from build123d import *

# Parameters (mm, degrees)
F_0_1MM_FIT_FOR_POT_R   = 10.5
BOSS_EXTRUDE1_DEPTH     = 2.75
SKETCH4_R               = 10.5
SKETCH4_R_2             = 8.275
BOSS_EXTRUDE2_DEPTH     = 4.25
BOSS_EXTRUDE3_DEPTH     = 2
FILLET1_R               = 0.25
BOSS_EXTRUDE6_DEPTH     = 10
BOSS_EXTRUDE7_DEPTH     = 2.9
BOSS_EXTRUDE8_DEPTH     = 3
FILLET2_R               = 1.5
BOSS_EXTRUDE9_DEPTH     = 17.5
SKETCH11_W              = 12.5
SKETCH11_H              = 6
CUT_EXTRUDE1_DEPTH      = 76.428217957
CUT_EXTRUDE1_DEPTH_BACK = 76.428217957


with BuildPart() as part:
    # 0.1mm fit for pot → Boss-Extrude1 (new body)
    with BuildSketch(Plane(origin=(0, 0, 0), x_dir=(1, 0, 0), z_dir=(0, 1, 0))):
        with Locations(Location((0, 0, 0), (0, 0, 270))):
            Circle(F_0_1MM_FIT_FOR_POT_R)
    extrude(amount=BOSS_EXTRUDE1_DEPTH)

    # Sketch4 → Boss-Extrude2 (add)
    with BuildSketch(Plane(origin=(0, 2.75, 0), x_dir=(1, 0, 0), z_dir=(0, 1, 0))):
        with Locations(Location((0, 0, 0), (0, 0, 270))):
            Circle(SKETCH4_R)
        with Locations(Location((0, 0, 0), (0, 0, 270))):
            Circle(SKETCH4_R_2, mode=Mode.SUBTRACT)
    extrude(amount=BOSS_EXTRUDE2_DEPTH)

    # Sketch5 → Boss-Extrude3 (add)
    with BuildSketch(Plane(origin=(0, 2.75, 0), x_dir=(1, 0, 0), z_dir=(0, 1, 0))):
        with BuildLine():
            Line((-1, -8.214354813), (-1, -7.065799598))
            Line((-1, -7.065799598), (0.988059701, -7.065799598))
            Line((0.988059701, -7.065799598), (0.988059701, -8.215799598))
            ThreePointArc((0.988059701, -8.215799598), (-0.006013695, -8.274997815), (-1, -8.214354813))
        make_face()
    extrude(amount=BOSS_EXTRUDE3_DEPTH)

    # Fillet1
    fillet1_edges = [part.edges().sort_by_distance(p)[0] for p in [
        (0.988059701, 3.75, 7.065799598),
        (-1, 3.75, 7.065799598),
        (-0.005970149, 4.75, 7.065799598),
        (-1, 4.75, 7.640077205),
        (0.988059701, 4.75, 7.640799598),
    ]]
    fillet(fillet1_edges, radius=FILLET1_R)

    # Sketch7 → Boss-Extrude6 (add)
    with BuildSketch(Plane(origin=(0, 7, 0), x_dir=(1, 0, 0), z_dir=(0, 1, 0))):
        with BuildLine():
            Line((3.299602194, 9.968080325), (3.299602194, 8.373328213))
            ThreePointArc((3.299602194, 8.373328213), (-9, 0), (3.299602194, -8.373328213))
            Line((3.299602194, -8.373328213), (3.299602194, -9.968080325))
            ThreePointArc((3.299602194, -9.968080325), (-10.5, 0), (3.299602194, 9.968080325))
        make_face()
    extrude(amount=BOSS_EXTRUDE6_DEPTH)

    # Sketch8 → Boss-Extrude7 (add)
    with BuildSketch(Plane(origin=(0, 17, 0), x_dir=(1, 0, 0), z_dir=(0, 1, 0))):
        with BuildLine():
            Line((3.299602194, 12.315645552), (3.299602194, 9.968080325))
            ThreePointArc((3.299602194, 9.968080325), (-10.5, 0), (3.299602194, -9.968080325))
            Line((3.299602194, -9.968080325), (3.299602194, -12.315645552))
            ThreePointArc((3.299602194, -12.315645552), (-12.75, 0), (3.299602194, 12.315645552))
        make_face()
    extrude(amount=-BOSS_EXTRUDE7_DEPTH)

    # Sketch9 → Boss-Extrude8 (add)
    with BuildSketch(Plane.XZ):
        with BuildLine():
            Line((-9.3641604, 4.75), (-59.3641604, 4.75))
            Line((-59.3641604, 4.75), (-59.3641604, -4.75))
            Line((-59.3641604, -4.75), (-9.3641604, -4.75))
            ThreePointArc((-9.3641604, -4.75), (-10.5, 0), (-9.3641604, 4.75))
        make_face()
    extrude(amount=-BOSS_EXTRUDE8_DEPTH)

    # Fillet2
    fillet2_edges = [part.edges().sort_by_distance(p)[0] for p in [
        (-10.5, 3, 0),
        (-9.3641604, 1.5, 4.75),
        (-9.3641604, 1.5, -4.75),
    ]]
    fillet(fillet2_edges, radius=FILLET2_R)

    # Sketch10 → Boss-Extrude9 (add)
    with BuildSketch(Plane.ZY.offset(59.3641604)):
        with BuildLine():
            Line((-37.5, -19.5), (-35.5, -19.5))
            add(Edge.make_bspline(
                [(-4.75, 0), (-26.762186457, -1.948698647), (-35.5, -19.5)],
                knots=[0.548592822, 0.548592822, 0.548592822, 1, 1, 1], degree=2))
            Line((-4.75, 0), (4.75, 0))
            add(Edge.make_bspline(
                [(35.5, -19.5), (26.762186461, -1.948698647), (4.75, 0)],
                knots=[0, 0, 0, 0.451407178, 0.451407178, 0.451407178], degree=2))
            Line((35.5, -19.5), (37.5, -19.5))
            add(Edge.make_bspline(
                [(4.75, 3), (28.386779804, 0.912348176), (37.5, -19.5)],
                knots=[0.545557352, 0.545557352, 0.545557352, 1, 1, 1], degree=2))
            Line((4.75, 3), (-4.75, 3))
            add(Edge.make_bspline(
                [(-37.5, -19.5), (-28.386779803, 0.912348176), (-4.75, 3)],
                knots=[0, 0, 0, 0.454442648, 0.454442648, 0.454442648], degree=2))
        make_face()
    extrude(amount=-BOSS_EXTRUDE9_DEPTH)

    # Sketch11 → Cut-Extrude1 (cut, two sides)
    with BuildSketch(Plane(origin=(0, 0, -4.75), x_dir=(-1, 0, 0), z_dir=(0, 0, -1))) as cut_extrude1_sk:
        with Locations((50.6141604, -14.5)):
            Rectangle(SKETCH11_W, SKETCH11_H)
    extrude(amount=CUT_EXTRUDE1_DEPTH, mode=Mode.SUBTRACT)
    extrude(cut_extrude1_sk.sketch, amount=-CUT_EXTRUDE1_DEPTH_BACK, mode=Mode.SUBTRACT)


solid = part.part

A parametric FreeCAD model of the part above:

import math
import FreeCAD as App
import Part
import Sketcher

V = App.Vector
Q = App.Units.Quantity


def edges_at(feature, points):
    """Names of the edges that pass closest to the given points."""
    edges = feature.Shape.Edges
    near = lambda p: min(range(len(edges)), key=lambda i: edges[i].distToShape(Part.Vertex(*p))[0])
    return sorted({f"Edge{near(p) + 1}" for p in points})


def add_polygon(sketch, points):
    """Adds a closed chain of lines whose ends are joined by coincident constraints."""
    first, n = sketch.GeometryCount, len(points)
    for a, b in zip(points, points[1:] + points[:1]):
        sketch.addGeometry(Part.LineSegment(App.Vector(*a, 0), App.Vector(*b, 0)), False)
    for i in range(n):
        sketch.addConstraint(Sketcher.Constraint("Coincident", first + i, 2, first + (i + 1) % n, 1))

doc = App.newDocument("Part")
params = doc.addObject("Spreadsheet::Sheet", "Params")
for row, (alias, value) in enumerate([
    ("sketch1_diameter", "21 mm"),
    ("pad1_length", "2.75 mm"),
    ("sketch2_diameter", "21 mm"),
    ("sketch2_diameter2", "16.55 mm"),
    ("pad2_length", "4.25 mm"),
    ("sketch3_height", "1.15 mm"),
    ("pad3_length", "2 mm"),
    ("fillet_radius", "0.25 mm"),
    ("sketch4_radius", "9 mm"),
    ("sketch4_radius2", "10.5 mm"),
    ("pad4_length", "10 mm"),
    ("sketch5_radius", "10.5 mm"),
    ("sketch5_radius2", "12.75 mm"),
    ("pad5_length", "2.9 mm"),
    ("sketch6_radius", "10.5 mm"),
    ("sketch6_width", "50 mm"),
    ("sketch6_height", "9.5 mm"),
    ("pad6_length", "3 mm"),
    ("fillet2_radius", "1.5 mm"),
    ("pad7_length", "17.5 mm"),
    ("sketch8_height", "6 mm"),
    ("sketch8_width", "12.5 mm"),
], start=1):
    params.set(f"A{row}", alias)
    params.set(f"B{row}", "=" + value)
    params.setAlias(f"B{row}", alias)

body = doc.addObject("PartDesign::Body", "Body")

# Sketch on XZ plane
sketch1 = body.newObject("Sketcher::SketchObject", "Sketch")
sketch1.AttachmentSupport = (doc.getObject("XZ_Plane"), [""])
sketch1.MapMode = "FlatFace"
sketch1.addGeometry(Part.Circle(V(0, 0, 0), V(0, 0, 1), 10.5), False)
sketch1.addConstraint(Sketcher.Constraint("Coincident", 0, 3, -1, 1))
sketch1.addConstraint(Sketcher.Constraint("Diameter", 0, Q("21 mm")))
sketch1.setExpression("Constraints[1]", "Params.sketch1_diameter")
pad1 = body.newObject("PartDesign::Pad", "Pad")
pad1.Profile = sketch1
pad1.setExpression("Length", "Params.pad1_length")
pad1.Reversed = True

# Sketch on XZ plane
sketch2 = body.newObject("Sketcher::SketchObject", "Sketch001")
sketch2.AttachmentSupport = (doc.getObject("XZ_Plane"), [""])
sketch2.MapMode = "FlatFace"
sketch2.AttachmentOffset = App.Placement(V(0, 0, -2.75), App.Rotation())
sketch2.addGeometry(Part.Circle(V(0, 0, 0), V(0, 0, 1), 10.5), False)
sketch2.addGeometry(Part.Circle(V(0, 0, 0), V(0, 0, 1), 8.275), False)
sketch2.addConstraint(Sketcher.Constraint("Coincident", 0, 3, -1, 1))
sketch2.addConstraint(Sketcher.Constraint("Coincident", 1, 3, -1, 1))
sketch2.addConstraint(Sketcher.Constraint("Diameter", 0, Q("21 mm")))
sketch2.addConstraint(Sketcher.Constraint("Diameter", 1, Q("16.55 mm")))
sketch2.setExpression("Constraints[2]", "Params.sketch2_diameter")
sketch2.setExpression("Constraints[3]", "Params.sketch2_diameter2")
pad2 = body.newObject("PartDesign::Pad", "Pad001")
pad2.Profile = sketch2
pad2.setExpression("Length", "Params.pad2_length")
pad2.Reversed = True

# Sketch on XZ plane
sketch3 = body.newObject("Sketcher::SketchObject", "Sketch002")
sketch3.AttachmentSupport = (doc.getObject("XZ_Plane"), [""])
sketch3.MapMode = "FlatFace"
sketch3.AttachmentOffset = App.Placement(V(0, 0, -2.75), App.Rotation())
sketch3.addGeometry(Part.LineSegment(V(-1, 7.0658, 0), V(-1, 8.214355, 0)), False)
sketch3.addGeometry(Part.ArcOfCircle(Part.Circle(V(0, 0, 0), V(0, 0, 1), 8.275), math.radians(83.142352), math.radians(96.940926)), False)
sketch3.addGeometry(Part.LineSegment(V(0.98806, 8.2158, 0), V(0.98806, 7.0658, 0)), False)
sketch3.addGeometry(Part.LineSegment(V(0.98806, 7.0658, 0), V(-1, 7.0658, 0)), False)
sketch3.addConstraint(Sketcher.Constraint("Coincident", 0, 2, 1, 2))
sketch3.addConstraint(Sketcher.Constraint("Coincident", 1, 1, 2, 1))
sketch3.addConstraint(Sketcher.Constraint("Coincident", 2, 2, 3, 1))
sketch3.addConstraint(Sketcher.Constraint("Coincident", 3, 2, 0, 1))
sketch3.addConstraint(Sketcher.Constraint("Vertical", 0))
sketch3.addConstraint(Sketcher.Constraint("Vertical", 2))
sketch3.addConstraint(Sketcher.Constraint("Horizontal", 3))
sketch3.addConstraint(Sketcher.Constraint("Coincident", 1, 3, -1, 1))
sketch3.addConstraint(Sketcher.Constraint("DistanceX", 0, 2, -1, 1, Q("1 mm")))
sketch3.addConstraint(Sketcher.Constraint("Radius", 1, Q("8.275 mm")))
sketch3.addConstraint(Sketcher.Constraint("DistanceY", 2, 2, 2, 1, Q("1.15 mm")))
sketch3.addConstraint(Sketcher.Constraint("DistanceX", 3, 2, 3, 1, Q("1.98806 mm")))
sketch3.setExpression("Constraints[10]", "Params.sketch3_height")
pad3 = body.newObject("PartDesign::Pad", "Pad002")
pad3.Profile = sketch3
pad3.setExpression("Length", "Params.pad3_length")
pad3.Reversed = True
doc.recompute()

fillet = body.newObject("PartDesign::Fillet", "Fillet")
fillet.Base = (pad3, edges_at(pad3, [
    (0.988, 3.75, 7.066),
    (-1, 3.75, 7.066),
    (-0.006, 4.75, 7.066),
    (-1, 4.75, 7.64),
    (0.988, 4.75, 7.641),
]))
fillet.setExpression("Radius", "Params.fillet_radius")

# Sketch on XZ plane
sketch4 = body.newObject("Sketcher::SketchObject", "Sketch003")
sketch4.AttachmentSupport = (doc.getObject("XZ_Plane"), [""])
sketch4.MapMode = "FlatFace"
sketch4.AttachmentOffset = App.Placement(V(0, 0, -7), App.Rotation())
sketch4.addGeometry(Part.LineSegment(V(3.299602, -8.373328, 0), V(3.299602, -9.96808, 0)), False)
sketch4.addGeometry(Part.ArcOfCircle(Part.Circle(V(0, 0, 0), V(0, 0, 1), 10.5), math.radians(71.684588), math.radians(288.315412)), False)
sketch4.addGeometry(Part.LineSegment(V(3.299602, 9.96808, 0), V(3.299602, 8.373328, 0)), False)
sketch4.addGeometry(Part.ArcOfCircle(Part.Circle(V(0, 0, 0), V(0, 0, 1), 9), math.radians(68.492534), math.radians(291.507466)), False)
sketch4.addConstraint(Sketcher.Constraint("Coincident", 0, 2, 1, 2))
sketch4.addConstraint(Sketcher.Constraint("Coincident", 1, 1, 2, 1))
sketch4.addConstraint(Sketcher.Constraint("Coincident", 2, 2, 3, 1))
sketch4.addConstraint(Sketcher.Constraint("Coincident", 3, 2, 0, 1))
sketch4.addConstraint(Sketcher.Constraint("Vertical", 0))
sketch4.addConstraint(Sketcher.Constraint("Vertical", 2))
sketch4.addConstraint(Sketcher.Constraint("Coincident", 1, 3, -1, 1))
sketch4.addConstraint(Sketcher.Constraint("Coincident", 3, 3, -1, 1))
sketch4.addConstraint(Sketcher.Constraint("Vertical", 0, 2, 1, 1))
sketch4.addConstraint(Sketcher.Constraint("Radius", 3, Q("9 mm")))
sketch4.addConstraint(Sketcher.Constraint("Radius", 1, Q("10.5 mm")))
sketch4.addConstraint(Sketcher.Constraint("DistanceY", 0, 2, 0, 1, Q("1.594752 mm")))
sketch4.setExpression("Constraints[9]", "Params.sketch4_radius")
sketch4.setExpression("Constraints[10]", "Params.sketch4_radius2")
pad4 = body.newObject("PartDesign::Pad", "Pad003")
pad4.Profile = sketch4
pad4.setExpression("Length", "Params.pad4_length")
pad4.Reversed = True

# Sketch on XZ plane
sketch5 = body.newObject("Sketcher::SketchObject", "Sketch004")
sketch5.AttachmentSupport = (doc.getObject("XZ_Plane"), [""])
sketch5.MapMode = "FlatFace"
sketch5.AttachmentOffset = App.Placement(V(0, 0, -17), App.Rotation())
sketch5.addGeometry(Part.LineSegment(V(3.299602, -9.96808, 0), V(3.299602, -12.315646, 0)), False)
sketch5.addGeometry(Part.ArcOfCircle(Part.Circle(V(0, 0, 0), V(0, 0, 1), 12.75), math.radians(75.001585), math.radians(284.998415)), False)
sketch5.addGeometry(Part.LineSegment(V(3.299602, 12.315646, 0), V(3.299602, 9.96808, 0)), False)
sketch5.addGeometry(Part.ArcOfCircle(Part.Circle(V(0, 0, 0), V(0, 0, 1), 10.5), math.radians(71.684588), math.radians(288.315412)), False)
sketch5.addConstraint(Sketcher.Constraint("Coincident", 0, 2, 1, 2))
sketch5.addConstraint(Sketcher.Constraint("Coincident", 1, 1, 2, 1))
sketch5.addConstraint(Sketcher.Constraint("Coincident", 2, 2, 3, 1))
sketch5.addConstraint(Sketcher.Constraint("Coincident", 3, 2, 0, 1))
sketch5.addConstraint(Sketcher.Constraint("Vertical", 0))
sketch5.addConstraint(Sketcher.Constraint("Vertical", 2))
sketch5.addConstraint(Sketcher.Constraint("Coincident", 1, 3, -1, 1))
sketch5.addConstraint(Sketcher.Constraint("Coincident", 3, 3, -1, 1))
sketch5.addConstraint(Sketcher.Constraint("Vertical", 0, 2, 1, 1))
sketch5.addConstraint(Sketcher.Constraint("Radius", 3, Q("10.5 mm")))
sketch5.addConstraint(Sketcher.Constraint("Radius", 1, Q("12.75 mm")))
sketch5.addConstraint(Sketcher.Constraint("DistanceY", 0, 2, 0, 1, Q("2.347565 mm")))
sketch5.setExpression("Constraints[9]", "Params.sketch5_radius")
sketch5.setExpression("Constraints[10]", "Params.sketch5_radius2")
pad5 = body.newObject("PartDesign::Pad", "Pad004")
pad5.Profile = sketch5
pad5.setExpression("Length", "Params.pad5_length")

# Sketch on XZ plane
sketch6 = body.newObject("Sketcher::SketchObject", "Sketch005")
sketch6.AttachmentSupport = (doc.getObject("XZ_Plane"), [""])
sketch6.MapMode = "FlatFace"
sketch6.addGeometry(Part.LineSegment(V(-9.36416, 4.75, 0), V(-59.36416, 4.75, 0)), False)
sketch6.addGeometry(Part.LineSegment(V(-59.36416, 4.75, 0), V(-59.36416, -4.75, 0)), False)
sketch6.addGeometry(Part.LineSegment(V(-59.36416, -4.75, 0), V(-9.36416, -4.75, 0)), False)
sketch6.addGeometry(Part.ArcOfCircle(Part.Circle(V(0, 0, 0), V(0, 0, 1), 10.5), math.radians(153.103454), math.radians(206.896546)), False)
sketch6.addConstraint(Sketcher.Constraint("Coincident", 0, 2, 1, 1))
sketch6.addConstraint(Sketcher.Constraint("Coincident", 1, 2, 2, 1))
sketch6.addConstraint(Sketcher.Constraint("Coincident", 2, 2, 3, 2))
sketch6.addConstraint(Sketcher.Constraint("Coincident", 3, 1, 0, 1))
sketch6.addConstraint(Sketcher.Constraint("Horizontal", 0))
sketch6.addConstraint(Sketcher.Constraint("Vertical", 1))
sketch6.addConstraint(Sketcher.Constraint("Horizontal", 2))
sketch6.addConstraint(Sketcher.Constraint("Coincident", 3, 3, -1, 1))
sketch6.addConstraint(Sketcher.Constraint("Vertical", 2, 2, 3, 1))
sketch6.addConstraint(Sketcher.Constraint("Radius", 3, Q("10.5 mm")))
sketch6.addConstraint(Sketcher.Constraint("DistanceX", 0, 2, 0, 1, Q("50 mm")))
sketch6.addConstraint(Sketcher.Constraint("DistanceY", 1, 2, 1, 1, Q("9.5 mm")))
sketch6.setExpression("Constraints[9]", "Params.sketch6_radius")
sketch6.setExpression("Constraints[10]", "Params.sketch6_width")
sketch6.setExpression("Constraints[11]", "Params.sketch6_height")
pad6 = body.newObject("PartDesign::Pad", "Pad005")
pad6.Profile = sketch6
pad6.setExpression("Length", "Params.pad6_length")
pad6.Reversed = True
doc.recompute()

fillet2 = body.newObject("PartDesign::Fillet", "Fillet001")
fillet2.Base = (pad6, edges_at(pad6, [(-10.5, 3, 0), (-9.364, 1.5, 4.75), (-9.364, 1.5, -4.75)]))
fillet2.setExpression("Radius", "Params.fillet2_radius")

# Sketch on YZ plane
sketch7 = body.newObject("Sketcher::SketchObject", "Sketch006")
sketch7.AttachmentSupport = (doc.getObject("YZ_Plane"), [""])
sketch7.MapMode = "FlatFace"
sketch7.AttachmentOffset = App.Placement(V(0, 0, -59.36416), App.Rotation())
sketch7.addGeometry(Part.LineSegment(V(-19.5, -37.5, 0), V(-19.5, -35.5, 0)), False)
sketch7.addGeometry(Part.BSplineCurve([V(0, -4.75, 0), V(-1.948699, -26.762186, 0), V(-19.5, -35.5, 0)], [3, 3], [0.548592822, 1], False, 2, [1, 1, 1], False), False)
sketch7.addGeometry(Part.LineSegment(V(0, -4.75, 0), V(0, 4.75, 0)), False)
sketch7.addGeometry(Part.BSplineCurve([V(-19.5, 35.5, 0), V(-1.948699, 26.762186, 0), V(0, 4.75, 0)], [3, 3], [0, 0.451407178], False, 2, [1, 1, 1], False), False)
sketch7.addGeometry(Part.LineSegment(V(-19.5, 35.5, 0), V(-19.5, 37.5, 0)), False)
sketch7.addGeometry(Part.BSplineCurve([V(3, 4.75, 0), V(0.912348, 28.38678, 0), V(-19.5, 37.5, 0)], [3, 3], [0.545557352, 1], False, 2, [1, 1, 1], False), False)
sketch7.addGeometry(Part.LineSegment(V(3, 4.75, 0), V(3, -4.75, 0)), False)
sketch7.addGeometry(Part.BSplineCurve([V(-19.5, -37.5, 0), V(0.912348, -28.38678, 0), V(3, -4.75, 0)], [3, 3], [0, 0.454442648], False, 2, [1, 1, 1], False), False)
sketch7.addConstraint(Sketcher.Constraint("Block", 1))
sketch7.addConstraint(Sketcher.Constraint("Block", 3))
sketch7.addConstraint(Sketcher.Constraint("Block", 5))
sketch7.addConstraint(Sketcher.Constraint("Block", 7))
sketch7.addConstraint(Sketcher.Constraint("Coincident", 0, 2, 1, 2))
sketch7.addConstraint(Sketcher.Constraint("Coincident", 1, 1, 2, 1))
sketch7.addConstraint(Sketcher.Constraint("Coincident", 2, 2, 3, 2))
sketch7.addConstraint(Sketcher.Constraint("Coincident", 3, 1, 4, 1))
sketch7.addConstraint(Sketcher.Constraint("Coincident", 4, 2, 5, 2))
sketch7.addConstraint(Sketcher.Constraint("Coincident", 5, 1, 6, 1))
sketch7.addConstraint(Sketcher.Constraint("Coincident", 6, 2, 7, 2))
sketch7.addConstraint(Sketcher.Constraint("Coincident", 7, 1, 0, 1))
pad7 = body.newObject("PartDesign::Pad", "Pad006")
pad7.Profile = sketch7
pad7.setExpression("Length", "Params.pad7_length")

# Sketch on XY plane
sketch8 = body.newObject("Sketcher::SketchObject", "Sketch007")
sketch8.AttachmentSupport = (doc.getObject("XY_Plane"), [""])
sketch8.MapMode = "FlatFace"
sketch8.AttachmentOffset = App.Placement(V(0, 0, -4.75), App.Rotation())
add_polygon(sketch8, [(-44.36416, -11.5), (-44.36416, -17.5), (-56.86416, -17.5), (-56.86416, -11.5)])  # lines 0-3
sketch8.addConstraint(Sketcher.Constraint("Vertical", 0))
sketch8.addConstraint(Sketcher.Constraint("Horizontal", 1))
sketch8.addConstraint(Sketcher.Constraint("Vertical", 2))
sketch8.addConstraint(Sketcher.Constraint("Horizontal", 3))
sketch8.addConstraint(Sketcher.Constraint("DistanceY", 0, 2, 0, 1, Q("6 mm")))
sketch8.addConstraint(Sketcher.Constraint("DistanceX", 1, 2, 1, 1, Q("12.5 mm")))
sketch8.addConstraint(Sketcher.Constraint("DistanceY", 0, 2, -1, 1, Q("17.5 mm")))
sketch8.addConstraint(Sketcher.Constraint("DistanceX", 0, 2, -1, 1, Q("44.36416 mm")))
sketch8.setExpression("Constraints[8]", "Params.sketch8_height")
sketch8.setExpression("Constraints[9]", "Params.sketch8_width")
pocket1 = body.newObject("PartDesign::Pocket", "Pocket")
pocket1.Profile = sketch8
pocket1.Type = "ThroughAll"
pocket1.Midplane = True

doc.recompute()
